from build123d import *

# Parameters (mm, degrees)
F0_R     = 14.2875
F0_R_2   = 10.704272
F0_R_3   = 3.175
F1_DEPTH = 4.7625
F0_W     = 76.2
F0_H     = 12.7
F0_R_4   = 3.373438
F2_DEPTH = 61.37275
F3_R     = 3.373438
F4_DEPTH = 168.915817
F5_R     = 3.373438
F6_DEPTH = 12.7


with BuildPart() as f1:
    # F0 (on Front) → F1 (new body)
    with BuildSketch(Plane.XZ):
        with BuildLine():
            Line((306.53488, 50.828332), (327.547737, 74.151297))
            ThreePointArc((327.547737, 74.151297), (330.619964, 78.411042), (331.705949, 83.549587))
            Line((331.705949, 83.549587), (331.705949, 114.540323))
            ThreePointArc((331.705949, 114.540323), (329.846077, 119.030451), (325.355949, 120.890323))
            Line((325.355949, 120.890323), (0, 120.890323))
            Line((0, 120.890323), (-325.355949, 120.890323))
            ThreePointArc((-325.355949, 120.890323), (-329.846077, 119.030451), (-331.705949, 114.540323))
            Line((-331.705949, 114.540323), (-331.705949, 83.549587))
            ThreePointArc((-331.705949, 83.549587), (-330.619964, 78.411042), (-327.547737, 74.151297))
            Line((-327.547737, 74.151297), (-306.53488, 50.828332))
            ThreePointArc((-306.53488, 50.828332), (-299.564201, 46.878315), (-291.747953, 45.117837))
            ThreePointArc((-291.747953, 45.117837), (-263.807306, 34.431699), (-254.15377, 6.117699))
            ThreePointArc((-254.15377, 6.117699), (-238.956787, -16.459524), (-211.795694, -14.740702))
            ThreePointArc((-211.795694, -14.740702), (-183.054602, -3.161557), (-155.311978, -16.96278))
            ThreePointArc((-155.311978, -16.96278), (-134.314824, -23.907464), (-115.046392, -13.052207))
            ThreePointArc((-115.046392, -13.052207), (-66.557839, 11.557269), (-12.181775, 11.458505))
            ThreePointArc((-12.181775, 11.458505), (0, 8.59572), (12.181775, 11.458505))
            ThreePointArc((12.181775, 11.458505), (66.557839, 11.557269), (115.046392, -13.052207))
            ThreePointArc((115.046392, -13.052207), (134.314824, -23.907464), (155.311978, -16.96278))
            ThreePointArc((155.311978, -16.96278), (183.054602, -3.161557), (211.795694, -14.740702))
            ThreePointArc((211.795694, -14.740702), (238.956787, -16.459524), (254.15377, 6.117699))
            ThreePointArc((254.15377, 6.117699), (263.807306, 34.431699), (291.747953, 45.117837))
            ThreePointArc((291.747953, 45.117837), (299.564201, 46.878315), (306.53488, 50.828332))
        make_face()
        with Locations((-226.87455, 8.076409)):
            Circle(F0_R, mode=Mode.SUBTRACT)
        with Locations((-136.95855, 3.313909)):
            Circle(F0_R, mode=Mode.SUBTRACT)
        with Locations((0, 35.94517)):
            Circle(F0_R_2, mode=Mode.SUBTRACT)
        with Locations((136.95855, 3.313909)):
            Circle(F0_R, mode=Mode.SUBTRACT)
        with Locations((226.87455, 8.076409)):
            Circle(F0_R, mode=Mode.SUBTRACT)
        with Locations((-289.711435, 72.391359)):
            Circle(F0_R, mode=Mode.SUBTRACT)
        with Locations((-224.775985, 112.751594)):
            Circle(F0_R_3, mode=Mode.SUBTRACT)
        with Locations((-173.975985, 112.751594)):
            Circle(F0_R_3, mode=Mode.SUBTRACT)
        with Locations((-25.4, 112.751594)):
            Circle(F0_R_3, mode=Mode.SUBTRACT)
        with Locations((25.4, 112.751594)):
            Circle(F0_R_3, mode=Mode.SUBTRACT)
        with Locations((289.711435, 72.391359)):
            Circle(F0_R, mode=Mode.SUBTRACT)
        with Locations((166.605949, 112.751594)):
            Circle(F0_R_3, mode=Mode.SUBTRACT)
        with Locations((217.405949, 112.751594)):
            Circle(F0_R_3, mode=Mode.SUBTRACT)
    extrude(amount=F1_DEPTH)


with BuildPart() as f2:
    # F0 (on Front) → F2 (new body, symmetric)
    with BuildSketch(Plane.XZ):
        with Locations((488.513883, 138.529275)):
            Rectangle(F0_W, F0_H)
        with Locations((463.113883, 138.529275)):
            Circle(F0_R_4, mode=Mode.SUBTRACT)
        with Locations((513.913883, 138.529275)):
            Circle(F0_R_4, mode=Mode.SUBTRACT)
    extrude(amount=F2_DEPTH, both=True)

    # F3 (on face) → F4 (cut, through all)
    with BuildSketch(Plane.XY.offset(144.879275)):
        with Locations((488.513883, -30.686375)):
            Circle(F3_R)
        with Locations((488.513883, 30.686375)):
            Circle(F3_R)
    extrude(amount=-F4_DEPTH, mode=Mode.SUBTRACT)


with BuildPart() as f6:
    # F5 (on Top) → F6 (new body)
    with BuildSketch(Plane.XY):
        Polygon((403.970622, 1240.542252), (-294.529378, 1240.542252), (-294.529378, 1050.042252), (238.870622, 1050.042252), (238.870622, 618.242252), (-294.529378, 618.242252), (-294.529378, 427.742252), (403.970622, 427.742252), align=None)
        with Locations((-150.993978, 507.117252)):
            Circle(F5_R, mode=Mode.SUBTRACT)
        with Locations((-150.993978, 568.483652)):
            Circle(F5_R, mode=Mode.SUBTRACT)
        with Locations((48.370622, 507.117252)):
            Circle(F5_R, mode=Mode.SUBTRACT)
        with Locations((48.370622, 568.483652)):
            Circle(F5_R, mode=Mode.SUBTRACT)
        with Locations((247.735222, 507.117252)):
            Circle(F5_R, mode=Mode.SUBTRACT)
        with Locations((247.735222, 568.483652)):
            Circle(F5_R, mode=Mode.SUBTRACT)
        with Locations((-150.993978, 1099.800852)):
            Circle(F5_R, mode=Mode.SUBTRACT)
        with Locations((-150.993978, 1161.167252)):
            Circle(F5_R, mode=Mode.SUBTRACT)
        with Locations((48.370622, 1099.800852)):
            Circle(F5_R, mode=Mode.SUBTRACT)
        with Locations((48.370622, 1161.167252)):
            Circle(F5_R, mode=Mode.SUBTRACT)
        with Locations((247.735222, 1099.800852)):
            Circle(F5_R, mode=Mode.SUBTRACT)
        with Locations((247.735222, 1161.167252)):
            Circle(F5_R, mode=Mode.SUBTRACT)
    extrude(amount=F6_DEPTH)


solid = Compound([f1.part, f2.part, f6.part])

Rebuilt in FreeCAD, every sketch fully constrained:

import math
import FreeCAD as App
import Part
import Sketcher
Q = App.Units.Quantity


def add_polygon(sketch, points):
    """Adds a closed chain of lines whose ends are joined by coincident constraints."""
    first, n = sketch.GeometryCount, len(points)
    for a, b in zip(points, points[1:] + points[:1]):
        sketch.addGeometry(Part.LineSegment(App.Vector(*a, 0), App.Vector(*b, 0)), False)
    for i in range(n):
        sketch.addConstraint(Sketcher.Constraint("Coincident", first + i, 2, first + (i + 1) % n, 1))

doc = App.newDocument("Part")
body = doc.addObject("PartDesign::Body", "Body")

# Sketch on XZ plane
sketch1 = body.newObject("Sketcher::SketchObject", "Sketch")
sketch1.AttachmentSupport = (doc.getObject("XZ_Plane"), [""])
sketch1.MapMode = "FlatFace"
sketch1.addGeometry(Part.LineSegment(App.Vector(306.53488, 50.828332, 0), App.Vector(327.547737, 74.151297, 0)), False)
sketch1.addGeometry(Part.ArcOfCircle(Part.Circle(App.Vector(319.005945, 83.549589, 0), App.Vector(0, 0, 1), 12.700004), math.radians(-47.733354), math.radians(-0.000009)), False)
sketch1.addGeometry(Part.LineSegment(App.Vector(331.705949, 83.549587, 0), App.Vector(331.705949, 114.540323, 0)), False)
sketch1.addGeometry(Part.ArcOfCircle(Part.Circle(App.Vector(325.355949, 114.540323, 0), App.Vector(0, 0, 1), 6.35), math.radians(0.000002), math.radians(89.999998)), False)
sketch1.addGeometry(Part.LineSegment(App.Vector(325.355949, 120.890323, 0), App.Vector(-325.355949, 120.890323, 0)), False)
sketch1.addGeometry(Part.ArcOfCircle(Part.Circle(App.Vector(-325.355949, 114.540323, 0), App.Vector(0, 0, 1), 6.35), math.radians(90.000002), math.radians(179.999998)), False)
sketch1.addGeometry(Part.LineSegment(App.Vector(-331.705949, 114.540323, 0), App.Vector(-331.705949, 83.549587, 0)), False)
sketch1.addGeometry(Part.ArcOfCircle(Part.Circle(App.Vector(-319.005945, 83.549589, 0), App.Vector(0, 0, 1), 12.700004), math.radians(-179.999991), math.radians(-132.266646)), False)
sketch1.addGeometry(Part.LineSegment(App.Vector(-327.547737, 74.151297, 0), App.Vector(-306.53488, 50.828332, 0)), False)
sketch1.addGeometry(Part.ArcOfCircle(Part.Circle(App.Vector(-289.711434, 72.391363, 0), App.Vector(0, 0, 1), 27.349454), math.radians(-127.961303), math.radians(-94.27036)), False)
sketch1.addGeometry(Part.ArcOfCircle(Part.Circle(App.Vector(-289.172564, 9.980858, 0), App.Vector(0, 0, 1), 35.231235), math.radians(-6.295229), math.radians(94.192038)), False)
sketch1.addGeometry(Part.ArcOfCircle(Part.Circle(App.Vector(-226.87455, 8.076407, 0), App.Vector(0, 0, 1), 27.349449), math.radians(-175.893084), math.radians(-56.540982)), False)
sketch1.addGeometry(Part.ArcOfCircle(Part.Circle(App.Vector(-184.540521, -40.932613, 0), App.Vector(0, 0, 1), 37.800273), math.radians(39.354598), math.radians(136.139676)), False)
sketch1.addGeometry(Part.ArcOfCircle(Part.Circle(App.Vector(-136.95855, 3.313909, 0), App.Vector(0, 0, 1), 27.34945), math.radians(-132.149793), math.radians(-36.755927)), False)
sketch1.addGeometry(Part.ArcOfCircle(Part.Circle(App.Vector(-39.575393, -101.680527, 0), App.Vector(0, 0, 1), 116.408122), math.radians(76.389281), math.radians(130.415888)), False)
sketch1.addGeometry(Part.ArcOfCircle(Part.Circle(App.Vector(0, 35.945168, 0), App.Vector(0, 0, 1), 27.349448), math.radians(-116.449707), math.radians(-63.550293)), False)
sketch1.addGeometry(Part.ArcOfCircle(Part.Circle(App.Vector(39.575393, -101.680527, 0), App.Vector(0, 0, 1), 116.408122), math.radians(49.584112), math.radians(103.610719)), False)
sketch1.addGeometry(Part.ArcOfCircle(Part.Circle(App.Vector(136.95855, 3.313909, 0), App.Vector(0, 0, 1), 27.34945), math.radians(-143.244073), math.radians(-47.850207)), False)
sketch1.addGeometry(Part.ArcOfCircle(Part.Circle(App.Vector(184.540521, -40.932613, 0), App.Vector(0, 0, 1), 37.800273), math.radians(43.860324), math.radians(140.645402)), False)
sketch1.addGeometry(Part.ArcOfCircle(Part.Circle(App.Vector(226.87455, 8.076407, 0), App.Vector(0, 0, 1), 27.349449), math.radians(-123.459018), math.radians(-4.106916)), False)
sketch1.addGeometry(Part.ArcOfCircle(Part.Circle(App.Vector(289.172564, 9.980858, 0), App.Vector(0, 0, 1), 35.231235), math.radians(85.807962), math.radians(186.295229)), False)
sketch1.addGeometry(Part.ArcOfCircle(Part.Circle(App.Vector(289.711434, 72.391363, 0), App.Vector(0, 0, 1), 27.349454), math.radians(-85.72964), math.radians(-52.038697)), False)
sketch1.addGeometry(Part.Circle(App.Vector(-226.87455, 8.076409, 0), App.Vector(0, 0, 1), 14.2875), False)
sketch1.addGeometry(Part.Circle(App.Vector(-136.95855, 3.313909, 0), App.Vector(0, 0, 1), 14.2875), False)
sketch1.addGeometry(Part.Circle(App.Vector(0, 35.94517, 0), App.Vector(0, 0, 1), 10.704272), False)
sketch1.addGeometry(Part.Circle(App.Vector(136.95855, 3.313909, 0), App.Vector(0, 0, 1), 14.2875), False)
sketch1.addGeometry(Part.Circle(App.Vector(226.87455, 8.076409, 0), App.Vector(0, 0, 1), 14.2875), False)
sketch1.addGeometry(Part.Circle(App.Vector(-289.711435, 72.391359, 0), App.Vector(0, 0, 1), 14.2875), False)
sketch1.addGeometry(Part.Circle(App.Vector(-224.775985, 112.751594, 0), App.Vector(0, 0, 1), 3.175), False)
sketch1.addGeometry(Part.Circle(App.Vector(-173.975985, 112.751594, 0), App.Vector(0, 0, 1), 3.175), False)
sketch1.addGeometry(Part.Circle(App.Vector(-25.4, 112.751594, 0), App.Vector(0, 0, 1), 3.175), False)
sketch1.addGeometry(Part.Circle(App.Vector(289.711435, 72.391359, 0), App.Vector(0, 0, 1), 14.2875), False)
sketch1.addGeometry(Part.Circle(App.Vector(25.4, 112.751594, 0), App.Vector(0, 0, 1), 3.175), False)
sketch1.addGeometry(Part.Circle(App.Vector(166.605949, 112.751594, 0), App.Vector(0, 0, 1), 3.175), False)
sketch1.addGeometry(Part.Circle(App.Vector(217.405949, 112.751594, 0), App.Vector(0, 0, 1), 3.175), False)
sketch1.addConstraint(Sketcher.Constraint("Coincident", 0, 2, 1, 1))
sketch1.addConstraint(Sketcher.Constraint("Tangent", 1, 2, 2, 1))
sketch1.addConstraint(Sketcher.Constraint("Tangent", 2, 2, 3, 1))
sketch1.addConstraint(Sketcher.Constraint("Tangent", 3, 2, 4, 1))
sketch1.addConstraint(Sketcher.Constraint("Tangent", 4, 2, 5, 1))
sketch1.addConstraint(Sketcher.Constraint("Tangent", 5, 2, 6, 1))
sketch1.addConstraint(Sketcher.Constraint("Tangent", 6, 2, 7, 1))
sketch1.addConstraint(Sketcher.Constraint("Coincident", 7, 2, 8, 1))
sketch1.addConstraint(Sketcher.Constraint("Coincident", 8, 2, 9, 1))
sketch1.addConstraint(Sketcher.Constraint("Coincident", 9, 2, 10, 2))
sketch1.addConstraint(Sketcher.Constraint("Coincident", 10, 1, 11, 1))
sketch1.addConstraint(Sketcher.Constraint("Coincident", 11, 2, 12, 2))
sketch1.addConstraint(Sketcher.Constraint("Coincident", 12, 1, 13, 1))
sketch1.addConstraint(Sketcher.Constraint("Coincident", 13, 2, 14, 2))
sketch1.addConstraint(Sketcher.Constraint("Coincident", 14, 1, 15, 1))
sketch1.addConstraint(Sketcher.Constraint("Coincident", 15, 2, 16, 2))
sketch1.addConstraint(Sketcher.Constraint("Coincident", 16, 1, 17, 1))
sketch1.addConstraint(Sketcher.Constraint("Coincident", 17, 2, 18, 2))
sketch1.addConstraint(Sketcher.Constraint("Coincident", 18, 1, 19, 1))
sketch1.addConstraint(Sketcher.Constraint("Coincident", 19, 2, 20, 2))
sketch1.addConstraint(Sketcher.Constraint("Coincident", 20, 1, 21, 1))
sketch1.addConstraint(Sketcher.Constraint("Coincident", 21, 2, 0, 1))
sketch1.addConstraint(Sketcher.Constraint("Vertical", 2))
sketch1.addConstraint(Sketcher.Constraint("Horizontal", 4))
sketch1.addConstraint(Sketcher.Constraint("Vertical", 6))
sketch1.addConstraint(Sketcher.Constraint("Coincident", 22, 3, 11, 3))
sketch1.addConstraint(Sketcher.Constraint("Coincident", 23, 3, 13, 3))
sketch1.addConstraint(Sketcher.Constraint("Coincident", 24, 3, 15, 3))
sketch1.addConstraint(Sketcher.Constraint("Coincident", 25, 3, 17, 3))
sketch1.addConstraint(Sketcher.Constraint("Coincident", 26, 3, 19, 3))
sketch1.addConstraint(Sketcher.Constraint("Coincident", 27, 3, 9, 3))
sketch1.addConstraint(Sketcher.Constraint("Coincident", 31, 3, 21, 3))
sketch1.addConstraint(Sketcher.Constraint("Equal", 3, 5))
sketch1.addConstraint(Sketcher.Constraint("Equal", 1, 7))
sketch1.addConstraint(Sketcher.Constraint("Equal", 11, 13))
sketch1.addConstraint(Sketcher.Constraint("Equal", 13, 15))
sketch1.addConstraint(Sketcher.Constraint("Equal", 14, 16))
sketch1.addConstraint(Sketcher.Constraint("Equal", 15, 17))
sketch1.addConstraint(Sketcher.Constraint("Equal", 12, 18))
sketch1.addConstraint(Sketcher.Constraint("Equal", 17, 19))
sketch1.addConstraint(Sketcher.Constraint("Equal", 10, 20))
sketch1.addConstraint(Sketcher.Constraint("Equal", 9, 21))
sketch1.addConstraint(Sketcher.Constraint("Equal", 22, 23))
sketch1.addConstraint(Sketcher.Constraint("Equal", 23, 25))
sketch1.addConstraint(Sketcher.Constraint("Equal", 25, 26))
sketch1.addConstraint(Sketcher.Constraint("Equal", 26, 27))
sketch1.addConstraint(Sketcher.Constraint("Equal", 28, 29))
sketch1.addConstraint(Sketcher.Constraint("Equal", 29, 30))
sketch1.addConstraint(Sketcher.Constraint("Equal", 27, 31))
sketch1.addConstraint(Sketcher.Constraint("Equal", 30, 32))
sketch1.addConstraint(Sketcher.Constraint("Equal", 32, 33))
sketch1.addConstraint(Sketcher.Constraint("Equal", 33, 34))
sketch1.addConstraint(Sketcher.Constraint("Symmetric", 1, 3, 7, 3, -2))
sketch1.addConstraint(Sketcher.Constraint("Symmetric", 14, 3, 16, 3, -2))
sketch1.addConstraint(Sketcher.Constraint("Symmetric", 13, 3, 17, 3, -2))
sketch1.addConstraint(Sketcher.Constraint("Symmetric", 12, 3, 18, 3, -2))
sketch1.addConstraint(Sketcher.Constraint("Symmetric", 11, 3, 19, 3, -2))
sketch1.addConstraint(Sketcher.Constraint("Symmetric", 10, 3, 20, 3, -2))
sketch1.addConstraint(Sketcher.Constraint("Symmetric", 9, 3, 21, 3, -2))
sketch1.addConstraint(Sketcher.Constraint("Symmetric", 30, 3, 32, 3, -2))
sketch1.addConstraint(Sketcher.Constraint("PointOnObject", 15, 3, -2))
sketch1.addConstraint(Sketcher.Constraint("Horizontal", 28, 3, 29, 3))
sketch1.addConstraint(Sketcher.Constraint("Horizontal", 29, 3, 30, 3))
sketch1.addConstraint(Sketcher.Constraint("Horizontal", 32, 3, 33, 3))
sketch1.addConstraint(Sketcher.Constraint("Horizontal", 33, 3, 34, 3))
sketch1.addConstraint(Sketcher.Constraint("Horizontal", 0, 2, 7, 2))
sketch1.addConstraint(Sketcher.Constraint("Horizontal", 8, 2, 21, 2))
sketch1.addConstraint(Sketcher.Constraint("Radius", 1, Q("0.5000002 in")))
sketch1.addConstraint(Sketcher.Constraint("Diameter", 28, Q("0.25 in")))
sketch1.addConstraint(Sketcher.Constraint("Radius", 3, Q("0.25 in")))
sketch1.addConstraint(Sketcher.Constraint("Diameter", 22, Q("1.125 in")))
sketch1.addConstraint(Sketcher.Constraint("DistanceX", 30, 3, -1, 1, Q("1 in")))
sketch1.addConstraint(Sketcher.Constraint("DistanceX", 28, 3, 29, 3, Q("2 in")))
sketch1.addConstraint(Sketcher.Constraint("DistanceX", 33, 3, 34, 3, Q("2 in")))
sketch1.addConstraint(Sketcher.Constraint("DistanceX", 11, 3, 13, 3, Q("3.54 in")))
sketch1.addConstraint(Sketcher.Constraint("Radius", 11, Q("27.349449 mm")))
sketch1.addConstraint(Sketcher.Constraint("Radius", 14, Q("116.408122 mm")))
sketch1.addConstraint(Sketcher.Constraint("DistanceY", 13, 3, 11, 3, Q("0.1875 in")))
sketch1.addConstraint(Sketcher.Constraint("Diameter", 24, Q("21.408544 mm")))
sketch1.addConstraint(Sketcher.Constraint("DistanceX", 4, 2, 4, 1, Q("650.711898 mm")))
sketch1.addConstraint(Sketcher.Constraint("Radius", 9, Q("27.349454 mm")))
sketch1.addConstraint(Sketcher.Constraint("Radius", 10, Q("35.231235 mm")))
sketch1.addConstraint(Sketcher.Constraint("Radius", 12, Q("37.800273 mm")))
sketch1.addConstraint(Sketcher.Constraint("DistanceY", 21, 3, 1, 2, Q("0.4393002 in")))
sketch1.addConstraint(Sketcher.Constraint("DistanceY", -1, 1, 10, 1, Q("6.117699 mm")))
sketch1.addConstraint(Sketcher.Constraint("DistanceY", 11, 2, -1, 1, Q("14.740702 mm")))
sketch1.addConstraint(Sketcher.Constraint("DistanceX", 5, 3, 11, 3, Q("98.481399 mm")))
sketch1.addConstraint(Sketcher.Constraint("DistanceY", 10, 3, 27, 3, Q("62.410501 mm")))
sketch1.addConstraint(Sketcher.Constraint("DistanceX", 25, 3, 33, 3, Q("29.647399 mm")))
sketch1.addConstraint(Sketcher.Constraint("DistanceX", 31, 3, 0, 2, Q("37.836302 mm")))
sketch1.addConstraint(Sketcher.Constraint("DistanceY", 2, 1, 2, 2, Q("30.990736 mm")))
sketch1.addConstraint(Sketcher.Constraint("DistanceY", -1, 1, 1, 3, Q("83.549589 mm")))
sketch1.addConstraint(Sketcher.Constraint("DistanceX", 12, 3, -1, 1, Q("184.540521 mm")))
sketch1.addConstraint(Sketcher.Constraint("DistanceY", -1, 1, 13, 3, Q("3.313909 mm")))
sketch1.addConstraint(Sketcher.Constraint("DistanceY", -1, 1, 15, 3, Q("35.945168 mm")))
sketch1.addConstraint(Sketcher.Constraint("DistanceX", 8, 2, -1, 1, Q("306.53488 mm")))
sketch1.addConstraint(Sketcher.Constraint("DistanceX", 13, 2, -1, 1, Q("115.046392 mm")))
sketch1.addConstraint(Sketcher.Constraint("DistanceY", -1, 1, 21, 2, Q("50.828332 mm")))
sketch1.addConstraint(Sketcher.Constraint("DistanceX", 12, 3, 14, 3, Q("144.965129 mm")))
sketch1.addConstraint(Sketcher.Constraint("DistanceX", 9, 3, 28, 3, Q("64.935449 mm")))
sketch1.addConstraint(Sketcher.Constraint("DistanceY", 9, 3, 28, 3, Q("40.360231 mm")))
pad1 = body.newObject("PartDesign::Pad", "Pad")
pad1.Profile = sketch1
pad1.Length = Q("0.1875 in")
body2 = doc.addObject("PartDesign::Body", "Body001")

# Sketch on XZ plane
sketch2 = body2.newObject("Sketcher::SketchObject", "Sketch001")
sketch2.AttachmentSupport = (doc.getObject("XZ_Plane001"), [""])
sketch2.MapMode = "FlatFace"
add_polygon(sketch2, [(450.4, 144.9), (450.4, 132.2), (526.6, 132.2), (526.6, 144.9)])  # lines 0-3
sketch2.addGeometry(Part.Circle(App.Vector(463.1, 138.5, 0), App.Vector(0, 0, 1), 3.4), False)  # 4
sketch2.addGeometry(Part.Circle(App.Vector(513.9, 138.5, 0), App.Vector(0, 0, 1), 3.4), False)  # 5
sketch2.addConstraint(Sketcher.Constraint("Vertical", 0))
sketch2.addConstraint(Sketcher.Constraint("Horizontal", 1))
sketch2.addConstraint(Sketcher.Constraint("Vertical", 2))
sketch2.addConstraint(Sketcher.Constraint("Horizontal", 3))
sketch2.addConstraint(Sketcher.Constraint("Equal", 4, 5))
sketch2.addConstraint(Sketcher.Constraint("Horizontal", 4, 3, 5, 3))
sketch2.addConstraint(Sketcher.Constraint("DistanceX", 1, 1, 1, 2, Q("3 in")))
sketch2.addConstraint(Sketcher.Constraint("Diameter", 4, Q("0.265625 in")))
sketch2.addConstraint(Sketcher.Constraint("DistanceY", 0, 2, 0, 1, Q("0.5 in")))
sketch2.addConstraint(Sketcher.Constraint("DistanceX", 4, 3, 5, 3, Q("2 in")))
sketch2.addConstraint(Sketcher.Constraint("DistanceX", 0, 2, 4, 3, Q("0.5 in")))
sketch2.addConstraint(Sketcher.Constraint("DistanceY", 0, 2, 4, 3, Q("0.25 in")))
sketch2.addConstraint(Sketcher.Constraint("DistanceX", -1, 1, 4, 3, Q("463.113883 mm")))
sketch2.addConstraint(Sketcher.Constraint("DistanceY", -1, 1, 4, 3, Q("138.529275 mm")))
pad2 = body2.newObject("PartDesign::Pad", "Pad001")
pad2.Profile = sketch2
pad2.Length = Q("4.8325 in")
pad2.Midplane = True

# Sketch on XY plane
sketch3 = body2.newObject("Sketcher::SketchObject", "Sketch002")
sketch3.AttachmentSupport = (doc.getObject("XY_Plane001"), [""])
sketch3.MapMode = "FlatFace"
sketch3.AttachmentOffset = App.Placement(App.Vector(0, 0, 144.879275), App.Rotation())
sketch3.addGeometry(Part.Circle(App.Vector(488.5, -30.7, 0), App.Vector(0, 0, 1), 3.4), False)
sketch3.addGeometry(Part.Circle(App.Vector(488.5, 30.7, 0), App.Vector(0, 0, 1), 3.4), False)
sketch3.addConstraint(Sketcher.Constraint("Equal", 0, 1))
sketch3.addConstraint(Sketcher.Constraint("Symmetric", 0, 3, 1, 3, -1))
sketch3.addConstraint(Sketcher.Constraint("Diameter", 0, Q("0.265625 in")))
sketch3.addConstraint(Sketcher.Constraint("DistanceY", 0, 3, 1, 3, Q("61.37275 mm")))
sketch3.addConstraint(Sketcher.Constraint("DistanceX", -1, 1, 0, 3, Q("488.513883 mm")))
pocket1 = body2.newObject("PartDesign::Pocket", "Pocket")
pocket1.Profile = sketch3
pocket1.Type = "ThroughAll"
body3 = doc.addObject("PartDesign::Body", "Body002")

# Sketch on XY plane
sketch4 = body3.newObject("Sketcher::SketchObject", "Sketch003")
sketch4.AttachmentSupport = (doc.getObject("XY_Plane002"), [""])
sketch4.MapMode = "FlatFace"
add_polygon(sketch4, [(404, 1240.5), (-294.5, 1240.5), (-294.5, 1050), (238.9, 1050), (238.9, 618.2), (-294.5, 618.2), (-294.5, 427.7), (404, 427.7)])  # lines 0-7
sketch4.addGeometry(Part.Circle(App.Vector(-151, 507.1, 0), App.Vector(0, 0, 1), 3.4), False)  # 8
sketch4.addGeometry(Part.Circle(App.Vector(-151, 568.5, 0), App.Vector(0, 0, 1), 3.4), False)  # 9
sketch4.addGeometry(Part.Circle(App.Vector(48.4, 507.1, 0), App.Vector(0, 0, 1), 3.4), False)  # 10
sketch4.addGeometry(Part.Circle(App.Vector(48.4, 568.5, 0), App.Vector(0, 0, 1), 3.4), False)  # 11
sketch4.addGeometry(Part.Circle(App.Vector(247.7, 507.1, 0), App.Vector(0, 0, 1), 3.4), False)  # 12
sketch4.addGeometry(Part.Circle(App.Vector(247.7, 568.5, 0), App.Vector(0, 0, 1), 3.4), False)  # 13
sketch4.addGeometry(Part.Circle(App.Vector(-151, 1099.8, 0), App.Vector(0, 0, 1), 3.4), False)  # 14
sketch4.addGeometry(Part.Circle(App.Vector(-151, 1161.2, 0), App.Vector(0, 0, 1), 3.4), False)  # 15
sketch4.addGeometry(Part.Circle(App.Vector(48.4, 1099.8, 0), App.Vector(0, 0, 1), 3.4), False)  # 16
sketch4.addGeometry(Part.Circle(App.Vector(48.4, 1161.2, 0), App.Vector(0, 0, 1), 3.4), False)  # 17
sketch4.addGeometry(Part.Circle(App.Vector(247.7, 1099.8, 0), App.Vector(0, 0, 1), 3.4), False)  # 18
sketch4.addGeometry(Part.Circle(App.Vector(247.7, 1161.2, 0), App.Vector(0, 0, 1), 3.4), False)  # 19
sketch4.addConstraint(Sketcher.Constraint("Horizontal", 0))
sketch4.addConstraint(Sketcher.Constraint("Vertical", 1))
sketch4.addConstraint(Sketcher.Constraint("Horizontal", 2))
sketch4.addConstraint(Sketcher.Constraint("Vertical", 3))
sketch4.addConstraint(Sketcher.Constraint("Horizontal", 4))
sketch4.addConstraint(Sketcher.Constraint("Vertical", 5))
sketch4.addConstraint(Sketcher.Constraint("Horizontal", 6))
sketch4.addConstraint(Sketcher.Constraint("Vertical", 7))
sketch4.addConstraint(Sketcher.Constraint("Equal", 8, 9))
sketch4.addConstraint(Sketcher.Constraint("Equal", 9, 10))
sketch4.addConstraint(Sketcher.Constraint("Equal", 10, 11))
sketch4.addConstraint(Sketcher.Constraint("Equal", 11, 12))
sketch4.addConstraint(Sketcher.Constraint("Equal", 12, 13))
sketch4.addConstraint(Sketcher.Constraint("Equal", 13, 14))
sketch4.addConstraint(Sketcher.Constraint("Equal", 14, 15))
sketch4.addConstraint(Sketcher.Constraint("Equal", 15, 16))
sketch4.addConstraint(Sketcher.Constraint("Equal", 16, 17))
sketch4.addConstraint(Sketcher.Constraint("Equal", 17, 18))
sketch4.addConstraint(Sketcher.Constraint("Equal", 18, 19))
sketch4.addConstraint(Sketcher.Constraint("Horizontal", 8, 3, 10, 3))
sketch4.addConstraint(Sketcher.Constraint("Horizontal", 9, 3, 11, 3))
sketch4.addConstraint(Sketcher.Constraint("Horizontal", 10, 3, 12, 3))
sketch4.addConstraint(Sketcher.Constraint("Horizontal", 11, 3, 13, 3))
sketch4.addConstraint(Sketcher.Constraint("Horizontal", 14, 3, 16, 3))
sketch4.addConstraint(Sketcher.Constraint("Horizontal", 15, 3, 17, 3))
sketch4.addConstraint(Sketcher.Constraint("Horizontal", 16, 3, 18, 3))
sketch4.addConstraint(Sketcher.Constraint("Horizontal", 17, 3, 19, 3))
sketch4.addConstraint(Sketcher.Constraint("Vertical", 8, 3, 9, 3))
sketch4.addConstraint(Sketcher.Constraint("Vertical", 10, 3, 11, 3))
sketch4.addConstraint(Sketcher.Constraint("Vertical", 12, 3, 13, 3))
sketch4.addConstraint(Sketcher.Constraint("Vertical", 9, 3, 14, 3))
sketch4.addConstraint(Sketcher.Constraint("Vertical", 14, 3, 15, 3))
sketch4.addConstraint(Sketcher.Constraint("Vertical", 11, 3, 16, 3))
sketch4.addConstraint(Sketcher.Constraint("Vertical", 16, 3, 17, 3))
sketch4.addConstraint(Sketcher.Constraint("Vertical", 13, 3, 18, 3))
sketch4.addConstraint(Sketcher.Constraint("Vertical", 18, 3, 19, 3))
sketch4.addConstraint(Sketcher.Constraint("Vertical", 1, 2, 4, 2))
sketch4.addConstraint(Sketcher.Constraint("Equal", 1, 5))
sketch4.addConstraint(Sketcher.Constraint("DistanceX", 2, 1, 2, 2, Q("21 in")))
sketch4.addConstraint(Sketcher.Constraint("DistanceY", 3, 2, 3, 1, Q("17 in")))
sketch4.addConstraint(Sketcher.Constraint("DistanceY", 7, 1, 7, 2, Q("32 in")))
sketch4.addConstraint(Sketcher.Constraint("Diameter", 8, Q("0.265625 in")))
sketch4.addConstraint(Sketcher.Constraint("DistanceX", 0, 2, 0, 1, Q("27.5 in")))
sketch4.addConstraint(Sketcher.Constraint("DistanceX", 10, 3, 6, 2, Q("14 in")))
sketch4.addConstraint(Sketcher.Constraint("DistanceY", 8, 3, 15, 3, Q("25.75 in")))
sketch4.addConstraint(Sketcher.Constraint("DistanceY", 8, 3, 9, 3, Q("2.416 in")))
sketch4.addConstraint(Sketcher.Constraint("DistanceX", 8, 3, 10, 3, Q("7.849 in")))
sketch4.addConstraint(Sketcher.Constraint("DistanceX", 10, 3, 12, 3, Q("7.849 in")))
sketch4.addConstraint(Sketcher.Constraint("DistanceY", 9, 3, 14, 3, Q("20.918 in")))
sketch4.addConstraint(Sketcher.Constraint("DistanceY", 15, 3, 0, 2, Q("3.125 in")))
sketch4.addConstraint(Sketcher.Constraint("DistanceX", 8, 3, -1, 1, Q("150.993978 mm")))
sketch4.addConstraint(Sketcher.Constraint("DistanceY", -1, 1, 8, 3, Q("507.117252 mm")))
pad3 = body3.newObject("PartDesign::Pad", "Pad002")
pad3.Profile = sketch4
pad3.Length = Q("0.5 in")

doc.recompute()
